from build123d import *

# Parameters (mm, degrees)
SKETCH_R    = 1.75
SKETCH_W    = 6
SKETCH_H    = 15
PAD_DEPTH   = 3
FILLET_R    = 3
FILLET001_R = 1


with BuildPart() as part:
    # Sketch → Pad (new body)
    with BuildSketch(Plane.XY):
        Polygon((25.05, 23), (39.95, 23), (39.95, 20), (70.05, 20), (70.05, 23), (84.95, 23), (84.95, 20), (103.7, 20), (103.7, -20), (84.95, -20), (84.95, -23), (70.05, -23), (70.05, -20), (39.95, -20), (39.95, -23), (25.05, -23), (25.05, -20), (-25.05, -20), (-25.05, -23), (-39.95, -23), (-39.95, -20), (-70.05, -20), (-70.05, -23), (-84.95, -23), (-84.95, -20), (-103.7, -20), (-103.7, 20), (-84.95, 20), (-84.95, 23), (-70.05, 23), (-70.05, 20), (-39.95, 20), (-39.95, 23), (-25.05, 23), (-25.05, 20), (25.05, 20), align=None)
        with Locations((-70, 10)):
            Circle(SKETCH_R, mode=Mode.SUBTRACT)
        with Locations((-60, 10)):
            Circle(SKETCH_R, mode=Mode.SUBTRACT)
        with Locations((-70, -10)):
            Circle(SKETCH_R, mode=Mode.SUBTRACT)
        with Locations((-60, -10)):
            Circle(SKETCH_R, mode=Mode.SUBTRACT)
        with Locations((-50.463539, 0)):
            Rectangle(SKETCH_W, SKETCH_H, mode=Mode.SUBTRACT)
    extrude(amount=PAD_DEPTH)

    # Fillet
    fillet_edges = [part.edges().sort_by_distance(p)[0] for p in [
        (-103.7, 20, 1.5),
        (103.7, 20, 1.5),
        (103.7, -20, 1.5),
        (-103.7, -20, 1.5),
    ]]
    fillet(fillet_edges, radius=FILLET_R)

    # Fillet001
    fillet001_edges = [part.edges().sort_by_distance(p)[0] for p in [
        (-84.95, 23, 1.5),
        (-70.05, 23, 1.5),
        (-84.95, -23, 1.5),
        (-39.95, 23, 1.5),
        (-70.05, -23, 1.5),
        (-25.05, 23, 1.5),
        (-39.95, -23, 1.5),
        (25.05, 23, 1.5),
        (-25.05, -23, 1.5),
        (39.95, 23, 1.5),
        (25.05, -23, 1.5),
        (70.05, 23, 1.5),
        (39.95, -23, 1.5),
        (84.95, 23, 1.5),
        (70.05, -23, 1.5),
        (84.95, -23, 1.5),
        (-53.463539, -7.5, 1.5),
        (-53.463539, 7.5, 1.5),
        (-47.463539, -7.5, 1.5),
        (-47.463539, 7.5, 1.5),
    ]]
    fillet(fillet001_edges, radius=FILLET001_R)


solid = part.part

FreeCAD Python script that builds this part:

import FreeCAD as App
import Part
import Sketcher
from FreeCAD import Vector


def edges_at(feature, points):
    """Names of the edges that pass closest to the given points."""
    edges = feature.Shape.Edges
    near = lambda p: min(range(len(edges)), key=lambda i: edges[i].distToShape(Part.Vertex(*p))[0])
    return sorted({f"Edge{near(p) + 1}" for p in points})


def add_polygon(sketch, points):
    """Adds a closed chain of lines whose ends are joined by coincident constraints."""
    first, n = sketch.GeometryCount, len(points)
    for a, b in zip(points, points[1:] + points[:1]):
        sketch.addGeometry(Part.LineSegment(App.Vector(*a, 0), App.Vector(*b, 0)), False)
    for i in range(n):
        sketch.addConstraint(Sketcher.Constraint("Coincident", first + i, 2, first + (i + 1) % n, 1))

doc = App.newDocument("Part")
body = doc.addObject("PartDesign::Body", "Body")

# Sketch on XY plane
sketch1 = doc.addObject("Sketcher::SketchObject", "Sketch")
body.addObject(sketch1)
sketch1.AttachmentSupport = (doc.XY_Plane, [""])
sketch1.MapMode = "FlatFace"
add_polygon(sketch1, [(39.95, 23), (25.05, 23), (25.05, 20), (-25.05, 20), (-25.05, 23), (-39.95, 23), (-39.95, 20), (-70.05, 20), (-70.05, 23), (-84.95, 23), (-84.95, 20), (-103.7, 20), (-103.7, -20), (-84.95, -20), (-84.95, -23), (-70.05, -23), (-70.05, -20), (-39.95, -20), (-39.95, -23), (-25.05, -23), (-25.05, -20), (25.05, -20), (25.05, -23), (39.95, -23), (39.95, -20), (70.05, -20), (70.05, -23), (84.95, -23), (84.95, -20), (103.7, -20), (103.7, 20), (84.95, 20), (84.95, 23), (70.05, 23), (70.05, 20), (39.95, 20)])  # lines 0-35
sketch1.addGeometry(Part.Circle(Vector(-60, -10, 0), Vector(0, 0, 1), 1.75), False)  # 36
sketch1.addGeometry(Part.Circle(Vector(-70, -10, 0), Vector(0, 0, 1), 1.75), False)  # 37
add_polygon(sketch1, [(-53.463539, -7.5), (-53.463539, 7.5), (-47.463539, 7.5), (-47.463539, -7.5)])  # lines 38-41
sketch1.addGeometry(Part.Circle(Vector(-60, 10, 0), Vector(0, 0, 1), 1.75), False)  # 42
sketch1.addGeometry(Part.Circle(Vector(-70, 10, 0), Vector(0, 0, 1), 1.75), False)  # 43
sketch1.addConstraint(Sketcher.Constraint("Horizontal", 0))
sketch1.addConstraint(Sketcher.Constraint("Vertical", 1))
sketch1.addConstraint(Sketcher.Constraint("Horizontal", 2))
sketch1.addConstraint(Sketcher.Constraint("Vertical", 3))
sketch1.addConstraint(Sketcher.Constraint("Horizontal", 4))
sketch1.addConstraint(Sketcher.Constraint("Vertical", 5))
sketch1.addConstraint(Sketcher.Constraint("Horizontal", 6))
sketch1.addConstraint(Sketcher.Constraint("Vertical", 7))
sketch1.addConstraint(Sketcher.Constraint("Horizontal", 8))
sketch1.addConstraint(Sketcher.Constraint("Vertical", 9))
sketch1.addConstraint(Sketcher.Constraint("Horizontal", 10))
sketch1.addConstraint(Sketcher.Constraint("Vertical", 11))
sketch1.addConstraint(Sketcher.Constraint("Horizontal", 12))
sketch1.addConstraint(Sketcher.Constraint("Vertical", 13))
sketch1.addConstraint(Sketcher.Constraint("Horizontal", 14))
sketch1.addConstraint(Sketcher.Constraint("Vertical", 15))
sketch1.addConstraint(Sketcher.Constraint("Horizontal", 16))
sketch1.addConstraint(Sketcher.Constraint("Vertical", 17))
sketch1.addConstraint(Sketcher.Constraint("Horizontal", 18))
sketch1.addConstraint(Sketcher.Constraint("Vertical", 19))
sketch1.addConstraint(Sketcher.Constraint("Horizontal", 20))
sketch1.addConstraint(Sketcher.Constraint("Vertical", 21))
sketch1.addConstraint(Sketcher.Constraint("Horizontal", 22))
sketch1.addConstraint(Sketcher.Constraint("Vertical", 23))
sketch1.addConstraint(Sketcher.Constraint("Horizontal", 24))
sketch1.addConstraint(Sketcher.Constraint("Vertical", 25))
sketch1.addConstraint(Sketcher.Constraint("Horizontal", 26))
sketch1.addConstraint(Sketcher.Constraint("Vertical", 27))
sketch1.addConstraint(Sketcher.Constraint("Horizontal", 28))
sketch1.addConstraint(Sketcher.Constraint("Vertical", 29))
sketch1.addConstraint(Sketcher.Constraint("Horizontal", 30))
sketch1.addConstraint(Sketcher.Constraint("Vertical", 31))
sketch1.addConstraint(Sketcher.Constraint("Horizontal", 32))
sketch1.addConstraint(Sketcher.Constraint("Vertical", 33))
sketch1.addConstraint(Sketcher.Constraint("Horizontal", 34))
sketch1.addConstraint(Sketcher.Constraint("Vertical", 35))
sketch1.addConstraint(Sketcher.Constraint("Vertical", 38))
sketch1.addConstraint(Sketcher.Constraint("Horizontal", 39))
sketch1.addConstraint(Sketcher.Constraint("Vertical", 40))
sketch1.addConstraint(Sketcher.Constraint("Horizontal", 41))
sketch1.addConstraint(Sketcher.Constraint("Equal", 36, 37))
sketch1.addConstraint(Sketcher.Constraint("Equal", 37, 42))
sketch1.addConstraint(Sketcher.Constraint("Equal", 42, 43))
sketch1.addConstraint(Sketcher.Constraint("Symmetric", 0, 2, 18, 2, -1, 1))
sketch1.addConstraint(Sketcher.Constraint("Symmetric", 2, 2, 20, 2, -1, 1))
sketch1.addConstraint(Sketcher.Constraint("Symmetric", 4, 2, 22, 2, -1, 1))
sketch1.addConstraint(Sketcher.Constraint("Symmetric", 6, 2, 24, 2, -1, 1))
sketch1.addConstraint(Sketcher.Constraint("Symmetric", 8, 2, 26, 2, -1, 1))
sketch1.addConstraint(Sketcher.Constraint("Symmetric", 10, 2, 28, 2, -1, 1))
sketch1.addConstraint(Sketcher.Constraint("Symmetric", 12, 2, 30, 2, -1, 1))
sketch1.addConstraint(Sketcher.Constraint("Symmetric", 14, 2, 32, 2, -1, 1))
sketch1.addConstraint(Sketcher.Constraint("Symmetric", 16, 2, 34, 2, -1, 1))
sketch1.addConstraint(Sketcher.Constraint("Symmetric", 0, 2, 3, 2, -2))
sketch1.addConstraint(Sketcher.Constraint("Symmetric", 16, 2, 23, 2, -2))
sketch1.addConstraint(Sketcher.Constraint("Symmetric", 14, 2, 25, 2, -2))
sketch1.addConstraint(Sketcher.Constraint("Symmetric", 12, 2, 27, 2, -2))
sketch1.addConstraint(Sketcher.Constraint("Symmetric", 36, 3, 42, 3, -1))
sketch1.addConstraint(Sketcher.Constraint("Symmetric", 37, 3, 43, 3, -1))
sketch1.addConstraint(Sketcher.Constraint("Horizontal", 36, 3, 37, 3))
sketch1.addConstraint(Sketcher.Constraint("Horizontal", 2, 2, 5, 2))
sketch1.addConstraint(Sketcher.Constraint("Horizontal", 4, 2, 7, 2))
sketch1.addConstraint(Sketcher.Constraint("Horizontal", 6, 2, 9, 2))
sketch1.addConstraint(Sketcher.Constraint("Equal", 4, 8))
sketch1.addConstraint(Sketcher.Constraint("Diameter", 36, 3.5))
sketch1.addConstraint(Sketcher.Constraint("DistanceX", 39, 1, 39, 2, 6.0))
sketch1.addConstraint(Sketcher.Constraint("DistanceY", 1, 2, 1, 1, 3.0))
sketch1.addConstraint(Sketcher.Constraint("DistanceY", 11, 2, 11, 1, 40.0))
sketch1.addConstraint(Sketcher.Constraint("DistanceY", 38, 1, 38, 2, 15.0))
sketch1.addConstraint(Sketcher.Constraint("DistanceX", 0, 2, 0, 1, 14.9))
sketch1.addConstraint(Sketcher.Constraint("DistanceX", 2, 2, 2, 1, 50.1))
sketch1.addConstraint(Sketcher.Constraint("DistanceX", 6, 2, 6, 1, 30.1))
sketch1.addConstraint(Sketcher.Constraint("DistanceX", 36, 3, -1, 1, 60.0))
sketch1.addConstraint(Sketcher.Constraint("DistanceY", 36, 3, -1, 1, 10.0))
sketch1.addConstraint(Sketcher.Constraint("DistanceX", 37, 3, -1, 1, 70.0))
sketch1.addConstraint(Sketcher.Constraint("DistanceX", 10, 2, 10, 1, 18.75))
sketch1.addConstraint(Sketcher.Constraint("DistanceY", -1, 1, 38, 2, 7.5))
sketch1.addConstraint(Sketcher.Constraint("DistanceX", 38, 2, -1, 1, 53.463539))
pad1 = doc.addObject("PartDesign::Pad", "Pad")
body.addObject(pad1)
pad1.Profile = sketch1
pad1.Length = 3
doc.recompute()

fillet = doc.addObject("PartDesign::Fillet", "Fillet")
body.addObject(fillet)
fillet.Base = (pad1, edges_at(pad1, [
    (-103.7, 20, 1.5),
    (103.7, 20, 1.5),
    (103.7, -20, 1.5),
    (-103.7, -20, 1.5),
]))
fillet.Radius = 3
doc.recompute()

fillet2 = doc.addObject("PartDesign::Fillet", "Fillet001")
body.addObject(fillet2)
fillet2.Base = (fillet, edges_at(fillet, [
    (-84.95, 23, 1.5),
    (-70.05, 23, 1.5),
    (-84.95, -23, 1.5),
    (-39.95, 23, 1.5),
    (-70.05, -23, 1.5),
    (-25.05, 23, 1.5),
    (-39.95, -23, 1.5),
    (25.05, 23, 1.5),
    (-25.05, -23, 1.5),
    (39.95, 23, 1.5),
    (25.05, -23, 1.5),
    (70.05, 23, 1.5),
    (39.95, -23, 1.5),
    (84.95, 23, 1.5),
    (70.05, -23, 1.5),
    (84.95, -23, 1.5),
    (-53.464, -7.5, 1.5),
    (-53.464, 7.5, 1.5),
    (-47.464, -7.5, 1.5),
    (-47.464, 7.5, 1.5),
]))
fillet2.Radius = 1

doc.recompute()
